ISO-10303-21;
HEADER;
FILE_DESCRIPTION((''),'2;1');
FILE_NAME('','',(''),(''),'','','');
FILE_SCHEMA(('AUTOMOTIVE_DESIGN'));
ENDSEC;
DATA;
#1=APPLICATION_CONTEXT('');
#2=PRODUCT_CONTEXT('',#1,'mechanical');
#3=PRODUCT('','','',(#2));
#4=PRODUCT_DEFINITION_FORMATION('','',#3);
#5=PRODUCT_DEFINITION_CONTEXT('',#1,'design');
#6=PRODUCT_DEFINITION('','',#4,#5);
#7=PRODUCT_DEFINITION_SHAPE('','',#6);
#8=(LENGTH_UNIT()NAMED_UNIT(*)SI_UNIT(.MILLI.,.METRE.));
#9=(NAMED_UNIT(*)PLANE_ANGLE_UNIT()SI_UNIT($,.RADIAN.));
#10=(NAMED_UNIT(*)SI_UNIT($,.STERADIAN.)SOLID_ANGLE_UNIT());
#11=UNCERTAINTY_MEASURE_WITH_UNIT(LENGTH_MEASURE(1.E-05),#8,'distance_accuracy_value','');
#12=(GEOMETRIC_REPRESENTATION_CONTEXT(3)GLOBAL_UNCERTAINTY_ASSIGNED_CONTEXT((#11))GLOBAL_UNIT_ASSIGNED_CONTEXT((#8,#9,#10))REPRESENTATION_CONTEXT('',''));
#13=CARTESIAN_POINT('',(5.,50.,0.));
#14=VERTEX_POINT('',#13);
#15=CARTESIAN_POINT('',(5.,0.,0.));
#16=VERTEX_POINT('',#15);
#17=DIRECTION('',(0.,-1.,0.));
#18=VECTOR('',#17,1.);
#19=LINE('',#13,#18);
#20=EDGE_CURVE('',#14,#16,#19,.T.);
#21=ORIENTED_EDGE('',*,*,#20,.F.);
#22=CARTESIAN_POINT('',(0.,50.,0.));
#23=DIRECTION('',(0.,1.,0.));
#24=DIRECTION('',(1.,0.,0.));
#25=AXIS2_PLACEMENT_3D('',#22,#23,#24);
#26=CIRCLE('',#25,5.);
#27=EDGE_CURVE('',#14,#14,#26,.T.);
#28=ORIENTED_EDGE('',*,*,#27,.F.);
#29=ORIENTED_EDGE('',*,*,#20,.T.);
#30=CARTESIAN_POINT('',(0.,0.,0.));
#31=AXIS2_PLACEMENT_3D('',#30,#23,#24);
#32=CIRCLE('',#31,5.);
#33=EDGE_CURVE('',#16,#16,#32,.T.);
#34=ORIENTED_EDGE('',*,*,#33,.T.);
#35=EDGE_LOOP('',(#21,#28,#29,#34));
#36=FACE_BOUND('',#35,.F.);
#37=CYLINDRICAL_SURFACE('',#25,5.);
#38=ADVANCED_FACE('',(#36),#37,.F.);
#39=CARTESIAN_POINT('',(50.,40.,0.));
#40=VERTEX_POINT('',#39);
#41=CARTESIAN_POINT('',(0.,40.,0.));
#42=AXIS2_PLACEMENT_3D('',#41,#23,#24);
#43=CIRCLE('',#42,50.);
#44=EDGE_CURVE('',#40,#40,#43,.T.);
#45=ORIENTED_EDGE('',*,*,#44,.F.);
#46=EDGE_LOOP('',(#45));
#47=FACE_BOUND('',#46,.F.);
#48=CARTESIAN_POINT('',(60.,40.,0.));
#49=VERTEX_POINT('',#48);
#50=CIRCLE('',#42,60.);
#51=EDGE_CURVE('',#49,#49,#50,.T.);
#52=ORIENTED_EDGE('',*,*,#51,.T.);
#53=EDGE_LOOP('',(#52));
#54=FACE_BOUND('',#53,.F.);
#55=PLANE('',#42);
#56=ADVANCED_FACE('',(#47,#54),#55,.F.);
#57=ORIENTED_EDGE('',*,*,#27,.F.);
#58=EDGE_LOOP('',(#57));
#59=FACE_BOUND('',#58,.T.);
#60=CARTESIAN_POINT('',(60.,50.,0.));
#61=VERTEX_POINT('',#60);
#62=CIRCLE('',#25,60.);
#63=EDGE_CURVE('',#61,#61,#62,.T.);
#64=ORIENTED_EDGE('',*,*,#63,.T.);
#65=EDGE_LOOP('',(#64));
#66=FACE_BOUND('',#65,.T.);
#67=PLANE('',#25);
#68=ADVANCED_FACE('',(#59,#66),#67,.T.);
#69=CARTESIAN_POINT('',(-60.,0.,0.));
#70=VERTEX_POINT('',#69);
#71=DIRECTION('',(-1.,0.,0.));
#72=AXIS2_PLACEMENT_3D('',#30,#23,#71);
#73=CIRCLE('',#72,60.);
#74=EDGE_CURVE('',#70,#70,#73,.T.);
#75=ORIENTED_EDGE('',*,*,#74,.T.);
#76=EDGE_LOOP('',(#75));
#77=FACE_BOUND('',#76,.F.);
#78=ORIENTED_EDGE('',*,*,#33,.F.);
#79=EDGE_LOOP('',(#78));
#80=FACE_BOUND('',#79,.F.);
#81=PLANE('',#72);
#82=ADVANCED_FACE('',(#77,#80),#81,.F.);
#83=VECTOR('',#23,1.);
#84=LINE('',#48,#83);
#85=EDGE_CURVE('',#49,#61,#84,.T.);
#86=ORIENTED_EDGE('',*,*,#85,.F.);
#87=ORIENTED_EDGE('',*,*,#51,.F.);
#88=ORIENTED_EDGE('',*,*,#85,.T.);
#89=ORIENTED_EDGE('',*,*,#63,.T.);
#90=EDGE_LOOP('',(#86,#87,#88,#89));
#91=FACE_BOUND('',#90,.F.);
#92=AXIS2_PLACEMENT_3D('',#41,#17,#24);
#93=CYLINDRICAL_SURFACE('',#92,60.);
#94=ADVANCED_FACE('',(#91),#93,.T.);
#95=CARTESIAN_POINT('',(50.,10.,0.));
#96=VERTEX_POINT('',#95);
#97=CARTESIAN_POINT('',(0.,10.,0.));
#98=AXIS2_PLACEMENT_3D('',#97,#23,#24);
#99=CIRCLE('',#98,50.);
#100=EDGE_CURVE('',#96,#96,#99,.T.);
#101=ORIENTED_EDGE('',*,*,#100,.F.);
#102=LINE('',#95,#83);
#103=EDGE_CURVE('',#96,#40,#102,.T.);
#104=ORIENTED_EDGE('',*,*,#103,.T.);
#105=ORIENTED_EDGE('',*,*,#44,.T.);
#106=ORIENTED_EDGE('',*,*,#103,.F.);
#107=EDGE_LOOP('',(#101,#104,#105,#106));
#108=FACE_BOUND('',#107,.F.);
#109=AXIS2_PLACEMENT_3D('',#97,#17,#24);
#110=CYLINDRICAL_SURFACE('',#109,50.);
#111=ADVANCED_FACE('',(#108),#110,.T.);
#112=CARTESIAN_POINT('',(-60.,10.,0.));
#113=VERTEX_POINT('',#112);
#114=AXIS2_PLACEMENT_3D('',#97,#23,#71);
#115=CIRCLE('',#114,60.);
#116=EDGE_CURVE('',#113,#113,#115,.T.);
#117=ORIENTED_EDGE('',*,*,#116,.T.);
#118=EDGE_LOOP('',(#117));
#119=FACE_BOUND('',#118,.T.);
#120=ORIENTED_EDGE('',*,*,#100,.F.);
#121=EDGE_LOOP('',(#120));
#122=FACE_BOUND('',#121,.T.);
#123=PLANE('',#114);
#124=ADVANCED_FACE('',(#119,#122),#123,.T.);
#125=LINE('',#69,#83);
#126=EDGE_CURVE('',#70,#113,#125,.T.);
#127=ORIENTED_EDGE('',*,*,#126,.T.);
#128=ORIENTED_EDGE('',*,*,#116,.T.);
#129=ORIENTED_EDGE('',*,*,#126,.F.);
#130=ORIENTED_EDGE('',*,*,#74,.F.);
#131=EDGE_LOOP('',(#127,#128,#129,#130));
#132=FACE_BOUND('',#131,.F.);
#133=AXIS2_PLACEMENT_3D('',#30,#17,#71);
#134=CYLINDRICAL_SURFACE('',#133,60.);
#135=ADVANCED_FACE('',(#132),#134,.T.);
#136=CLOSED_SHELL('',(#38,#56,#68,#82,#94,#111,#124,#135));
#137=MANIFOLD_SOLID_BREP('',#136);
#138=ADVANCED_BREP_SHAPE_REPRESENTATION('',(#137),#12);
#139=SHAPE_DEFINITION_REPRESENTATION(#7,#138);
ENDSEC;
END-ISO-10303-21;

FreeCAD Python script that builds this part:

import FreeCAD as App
import Part
import Sketcher
from FreeCAD import Vector

doc = App.newDocument("Part")
body = doc.addObject("PartDesign::Body", "Body")

# Sketch on XZ plane
sketch1 = body.newObject("Sketcher::SketchObject", "Sketch")
sketch1.AttachmentSupport = (doc.getObject("XZ_Plane"), [""])
sketch1.MapMode = "FlatFace"
sketch1.addGeometry(Part.Circle(Vector(0, 0, 0), Vector(0, 0, 1), 60), False)
sketch1.addConstraint([
    Sketcher.Constraint("Coincident", 0, 3, -1, 1),
    Sketcher.Constraint("Diameter", 0, 120.0),
])
pad1 = body.newObject("PartDesign::Pad", "Pad")
pad1.Profile = sketch1
pad1.Length = 10
pad1.Reversed = True

# Sketch on XZ plane
sketch2 = body.newObject("Sketcher::SketchObject", "Sketch001")
sketch2.AttachmentSupport = (doc.getObject("XZ_Plane"), [""])
sketch2.MapMode = "FlatFace"
sketch2.AttachmentOffset = App.Placement(Vector(0, 0, -10), App.Rotation())
sketch2.addGeometry(Part.Circle(Vector(0, 0, 0), Vector(0, 0, 1), 50), False)
sketch2.addConstraint([
    Sketcher.Constraint("Coincident", 0, 3, -1, 1),
    Sketcher.Constraint("Diameter", 0, 100.0),
])
pad2 = body.newObject("PartDesign::Pad", "Pad001")
pad2.Profile = sketch2
pad2.Length = 30
pad2.Reversed = True

# Sketch on XZ plane
sketch3 = body.newObject("Sketcher::SketchObject", "Sketch002")
sketch3.AttachmentSupport = (doc.getObject("XZ_Plane"), [""])
sketch3.MapMode = "FlatFace"
sketch3.AttachmentOffset = App.Placement(Vector(0, 0, -40), App.Rotation())
sketch3.addGeometry(Part.Circle(Vector(0, 0, 0), Vector(0, 0, 1), 60), False)
sketch3.addConstraint([
    Sketcher.Constraint("Coincident", 0, 3, -1, 1),
    Sketcher.Constraint("Diameter", 0, 120.0),
])
pad3 = body.newObject("PartDesign::Pad", "Pad002")
pad3.Profile = sketch3
pad3.Length = 10
pad3.Reversed = True

# Sketch on XZ plane
sketch4 = body.newObject("Sketcher::SketchObject", "Sketch003")
sketch4.AttachmentSupport = (doc.getObject("XZ_Plane"), [""])
sketch4.MapMode = "FlatFace"
sketch4.AttachmentOffset = App.Placement(Vector(0, 0, -50), App.Rotation())
sketch4.addGeometry(Part.Circle(Vector(0, 0, 0), Vector(0, 0, 1), 5), False)
sketch4.addConstraint([
    Sketcher.Constraint("Coincident", 0, 3, -1, 1),
    Sketcher.Constraint("Diameter", 0, 10.0),
])
pocket1 = body.newObject("PartDesign::Pocket", "Pocket")
pocket1.Profile = sketch4
pocket1.Type = "ThroughAll"
pocket1.Reversed = True

doc.recompute()
